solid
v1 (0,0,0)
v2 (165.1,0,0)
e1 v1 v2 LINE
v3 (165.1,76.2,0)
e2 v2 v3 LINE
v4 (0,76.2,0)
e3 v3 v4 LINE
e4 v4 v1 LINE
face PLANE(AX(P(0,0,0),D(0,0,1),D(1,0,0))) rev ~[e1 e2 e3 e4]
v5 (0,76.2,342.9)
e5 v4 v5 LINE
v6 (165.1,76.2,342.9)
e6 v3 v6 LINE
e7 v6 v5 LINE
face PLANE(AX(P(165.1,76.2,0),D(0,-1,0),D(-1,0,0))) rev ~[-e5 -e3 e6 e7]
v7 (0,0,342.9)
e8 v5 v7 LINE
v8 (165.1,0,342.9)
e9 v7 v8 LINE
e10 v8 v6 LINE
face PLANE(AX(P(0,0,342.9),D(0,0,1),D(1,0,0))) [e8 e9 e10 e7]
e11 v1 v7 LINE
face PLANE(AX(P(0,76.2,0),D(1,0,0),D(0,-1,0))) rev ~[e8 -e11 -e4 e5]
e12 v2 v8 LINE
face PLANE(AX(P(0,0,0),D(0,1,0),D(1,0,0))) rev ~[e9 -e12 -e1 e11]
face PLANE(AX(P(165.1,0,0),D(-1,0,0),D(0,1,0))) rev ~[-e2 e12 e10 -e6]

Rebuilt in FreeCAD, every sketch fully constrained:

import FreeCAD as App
import Part
import Sketcher
Q = App.Units.Quantity


def add_polygon(sketch, points):
    """Adds a closed chain of lines whose ends are joined by coincident constraints."""
    first, n = sketch.GeometryCount, len(points)
    for a, b in zip(points, points[1:] + points[:1]):
        sketch.addGeometry(Part.LineSegment(App.Vector(*a, 0), App.Vector(*b, 0)), False)
    for i in range(n):
        sketch.addConstraint(Sketcher.Constraint("Coincident", first + i, 2, first + (i + 1) % n, 1))

doc = App.newDocument("Part")
body = doc.addObject("PartDesign::Body", "Body")

# Sketch on XY plane
sketch1 = body.newObject("Sketcher::SketchObject", "Sketch")
sketch1.AttachmentSupport = (doc.getObject("XY_Plane"), [""])
sketch1.MapMode = "FlatFace"
add_polygon(sketch1, [(0, 76), (0, 0), (165, 0), (165, 76)])  # lines 0-3
sketch1.addConstraint(Sketcher.Constraint("Vertical", 0))
sketch1.addConstraint(Sketcher.Constraint("Horizontal", 1))
sketch1.addConstraint(Sketcher.Constraint("Vertical", 2))
sketch1.addConstraint(Sketcher.Constraint("Horizontal", 3))
sketch1.addConstraint(Sketcher.Constraint("Coincident", 0, 2, -1, 1))
sketch1.addConstraint(Sketcher.Constraint("DistanceY", 0, 2, 0, 1, Q("3 in")))
sketch1.addConstraint(Sketcher.Constraint("DistanceX", 1, 1, 1, 2, Q("6.5 in")))
pad1 = body.newObject("PartDesign::Pad", "Pad")
pad1.Profile = sketch1
pad1.Length = Q("13.5 in")

doc.recompute()
